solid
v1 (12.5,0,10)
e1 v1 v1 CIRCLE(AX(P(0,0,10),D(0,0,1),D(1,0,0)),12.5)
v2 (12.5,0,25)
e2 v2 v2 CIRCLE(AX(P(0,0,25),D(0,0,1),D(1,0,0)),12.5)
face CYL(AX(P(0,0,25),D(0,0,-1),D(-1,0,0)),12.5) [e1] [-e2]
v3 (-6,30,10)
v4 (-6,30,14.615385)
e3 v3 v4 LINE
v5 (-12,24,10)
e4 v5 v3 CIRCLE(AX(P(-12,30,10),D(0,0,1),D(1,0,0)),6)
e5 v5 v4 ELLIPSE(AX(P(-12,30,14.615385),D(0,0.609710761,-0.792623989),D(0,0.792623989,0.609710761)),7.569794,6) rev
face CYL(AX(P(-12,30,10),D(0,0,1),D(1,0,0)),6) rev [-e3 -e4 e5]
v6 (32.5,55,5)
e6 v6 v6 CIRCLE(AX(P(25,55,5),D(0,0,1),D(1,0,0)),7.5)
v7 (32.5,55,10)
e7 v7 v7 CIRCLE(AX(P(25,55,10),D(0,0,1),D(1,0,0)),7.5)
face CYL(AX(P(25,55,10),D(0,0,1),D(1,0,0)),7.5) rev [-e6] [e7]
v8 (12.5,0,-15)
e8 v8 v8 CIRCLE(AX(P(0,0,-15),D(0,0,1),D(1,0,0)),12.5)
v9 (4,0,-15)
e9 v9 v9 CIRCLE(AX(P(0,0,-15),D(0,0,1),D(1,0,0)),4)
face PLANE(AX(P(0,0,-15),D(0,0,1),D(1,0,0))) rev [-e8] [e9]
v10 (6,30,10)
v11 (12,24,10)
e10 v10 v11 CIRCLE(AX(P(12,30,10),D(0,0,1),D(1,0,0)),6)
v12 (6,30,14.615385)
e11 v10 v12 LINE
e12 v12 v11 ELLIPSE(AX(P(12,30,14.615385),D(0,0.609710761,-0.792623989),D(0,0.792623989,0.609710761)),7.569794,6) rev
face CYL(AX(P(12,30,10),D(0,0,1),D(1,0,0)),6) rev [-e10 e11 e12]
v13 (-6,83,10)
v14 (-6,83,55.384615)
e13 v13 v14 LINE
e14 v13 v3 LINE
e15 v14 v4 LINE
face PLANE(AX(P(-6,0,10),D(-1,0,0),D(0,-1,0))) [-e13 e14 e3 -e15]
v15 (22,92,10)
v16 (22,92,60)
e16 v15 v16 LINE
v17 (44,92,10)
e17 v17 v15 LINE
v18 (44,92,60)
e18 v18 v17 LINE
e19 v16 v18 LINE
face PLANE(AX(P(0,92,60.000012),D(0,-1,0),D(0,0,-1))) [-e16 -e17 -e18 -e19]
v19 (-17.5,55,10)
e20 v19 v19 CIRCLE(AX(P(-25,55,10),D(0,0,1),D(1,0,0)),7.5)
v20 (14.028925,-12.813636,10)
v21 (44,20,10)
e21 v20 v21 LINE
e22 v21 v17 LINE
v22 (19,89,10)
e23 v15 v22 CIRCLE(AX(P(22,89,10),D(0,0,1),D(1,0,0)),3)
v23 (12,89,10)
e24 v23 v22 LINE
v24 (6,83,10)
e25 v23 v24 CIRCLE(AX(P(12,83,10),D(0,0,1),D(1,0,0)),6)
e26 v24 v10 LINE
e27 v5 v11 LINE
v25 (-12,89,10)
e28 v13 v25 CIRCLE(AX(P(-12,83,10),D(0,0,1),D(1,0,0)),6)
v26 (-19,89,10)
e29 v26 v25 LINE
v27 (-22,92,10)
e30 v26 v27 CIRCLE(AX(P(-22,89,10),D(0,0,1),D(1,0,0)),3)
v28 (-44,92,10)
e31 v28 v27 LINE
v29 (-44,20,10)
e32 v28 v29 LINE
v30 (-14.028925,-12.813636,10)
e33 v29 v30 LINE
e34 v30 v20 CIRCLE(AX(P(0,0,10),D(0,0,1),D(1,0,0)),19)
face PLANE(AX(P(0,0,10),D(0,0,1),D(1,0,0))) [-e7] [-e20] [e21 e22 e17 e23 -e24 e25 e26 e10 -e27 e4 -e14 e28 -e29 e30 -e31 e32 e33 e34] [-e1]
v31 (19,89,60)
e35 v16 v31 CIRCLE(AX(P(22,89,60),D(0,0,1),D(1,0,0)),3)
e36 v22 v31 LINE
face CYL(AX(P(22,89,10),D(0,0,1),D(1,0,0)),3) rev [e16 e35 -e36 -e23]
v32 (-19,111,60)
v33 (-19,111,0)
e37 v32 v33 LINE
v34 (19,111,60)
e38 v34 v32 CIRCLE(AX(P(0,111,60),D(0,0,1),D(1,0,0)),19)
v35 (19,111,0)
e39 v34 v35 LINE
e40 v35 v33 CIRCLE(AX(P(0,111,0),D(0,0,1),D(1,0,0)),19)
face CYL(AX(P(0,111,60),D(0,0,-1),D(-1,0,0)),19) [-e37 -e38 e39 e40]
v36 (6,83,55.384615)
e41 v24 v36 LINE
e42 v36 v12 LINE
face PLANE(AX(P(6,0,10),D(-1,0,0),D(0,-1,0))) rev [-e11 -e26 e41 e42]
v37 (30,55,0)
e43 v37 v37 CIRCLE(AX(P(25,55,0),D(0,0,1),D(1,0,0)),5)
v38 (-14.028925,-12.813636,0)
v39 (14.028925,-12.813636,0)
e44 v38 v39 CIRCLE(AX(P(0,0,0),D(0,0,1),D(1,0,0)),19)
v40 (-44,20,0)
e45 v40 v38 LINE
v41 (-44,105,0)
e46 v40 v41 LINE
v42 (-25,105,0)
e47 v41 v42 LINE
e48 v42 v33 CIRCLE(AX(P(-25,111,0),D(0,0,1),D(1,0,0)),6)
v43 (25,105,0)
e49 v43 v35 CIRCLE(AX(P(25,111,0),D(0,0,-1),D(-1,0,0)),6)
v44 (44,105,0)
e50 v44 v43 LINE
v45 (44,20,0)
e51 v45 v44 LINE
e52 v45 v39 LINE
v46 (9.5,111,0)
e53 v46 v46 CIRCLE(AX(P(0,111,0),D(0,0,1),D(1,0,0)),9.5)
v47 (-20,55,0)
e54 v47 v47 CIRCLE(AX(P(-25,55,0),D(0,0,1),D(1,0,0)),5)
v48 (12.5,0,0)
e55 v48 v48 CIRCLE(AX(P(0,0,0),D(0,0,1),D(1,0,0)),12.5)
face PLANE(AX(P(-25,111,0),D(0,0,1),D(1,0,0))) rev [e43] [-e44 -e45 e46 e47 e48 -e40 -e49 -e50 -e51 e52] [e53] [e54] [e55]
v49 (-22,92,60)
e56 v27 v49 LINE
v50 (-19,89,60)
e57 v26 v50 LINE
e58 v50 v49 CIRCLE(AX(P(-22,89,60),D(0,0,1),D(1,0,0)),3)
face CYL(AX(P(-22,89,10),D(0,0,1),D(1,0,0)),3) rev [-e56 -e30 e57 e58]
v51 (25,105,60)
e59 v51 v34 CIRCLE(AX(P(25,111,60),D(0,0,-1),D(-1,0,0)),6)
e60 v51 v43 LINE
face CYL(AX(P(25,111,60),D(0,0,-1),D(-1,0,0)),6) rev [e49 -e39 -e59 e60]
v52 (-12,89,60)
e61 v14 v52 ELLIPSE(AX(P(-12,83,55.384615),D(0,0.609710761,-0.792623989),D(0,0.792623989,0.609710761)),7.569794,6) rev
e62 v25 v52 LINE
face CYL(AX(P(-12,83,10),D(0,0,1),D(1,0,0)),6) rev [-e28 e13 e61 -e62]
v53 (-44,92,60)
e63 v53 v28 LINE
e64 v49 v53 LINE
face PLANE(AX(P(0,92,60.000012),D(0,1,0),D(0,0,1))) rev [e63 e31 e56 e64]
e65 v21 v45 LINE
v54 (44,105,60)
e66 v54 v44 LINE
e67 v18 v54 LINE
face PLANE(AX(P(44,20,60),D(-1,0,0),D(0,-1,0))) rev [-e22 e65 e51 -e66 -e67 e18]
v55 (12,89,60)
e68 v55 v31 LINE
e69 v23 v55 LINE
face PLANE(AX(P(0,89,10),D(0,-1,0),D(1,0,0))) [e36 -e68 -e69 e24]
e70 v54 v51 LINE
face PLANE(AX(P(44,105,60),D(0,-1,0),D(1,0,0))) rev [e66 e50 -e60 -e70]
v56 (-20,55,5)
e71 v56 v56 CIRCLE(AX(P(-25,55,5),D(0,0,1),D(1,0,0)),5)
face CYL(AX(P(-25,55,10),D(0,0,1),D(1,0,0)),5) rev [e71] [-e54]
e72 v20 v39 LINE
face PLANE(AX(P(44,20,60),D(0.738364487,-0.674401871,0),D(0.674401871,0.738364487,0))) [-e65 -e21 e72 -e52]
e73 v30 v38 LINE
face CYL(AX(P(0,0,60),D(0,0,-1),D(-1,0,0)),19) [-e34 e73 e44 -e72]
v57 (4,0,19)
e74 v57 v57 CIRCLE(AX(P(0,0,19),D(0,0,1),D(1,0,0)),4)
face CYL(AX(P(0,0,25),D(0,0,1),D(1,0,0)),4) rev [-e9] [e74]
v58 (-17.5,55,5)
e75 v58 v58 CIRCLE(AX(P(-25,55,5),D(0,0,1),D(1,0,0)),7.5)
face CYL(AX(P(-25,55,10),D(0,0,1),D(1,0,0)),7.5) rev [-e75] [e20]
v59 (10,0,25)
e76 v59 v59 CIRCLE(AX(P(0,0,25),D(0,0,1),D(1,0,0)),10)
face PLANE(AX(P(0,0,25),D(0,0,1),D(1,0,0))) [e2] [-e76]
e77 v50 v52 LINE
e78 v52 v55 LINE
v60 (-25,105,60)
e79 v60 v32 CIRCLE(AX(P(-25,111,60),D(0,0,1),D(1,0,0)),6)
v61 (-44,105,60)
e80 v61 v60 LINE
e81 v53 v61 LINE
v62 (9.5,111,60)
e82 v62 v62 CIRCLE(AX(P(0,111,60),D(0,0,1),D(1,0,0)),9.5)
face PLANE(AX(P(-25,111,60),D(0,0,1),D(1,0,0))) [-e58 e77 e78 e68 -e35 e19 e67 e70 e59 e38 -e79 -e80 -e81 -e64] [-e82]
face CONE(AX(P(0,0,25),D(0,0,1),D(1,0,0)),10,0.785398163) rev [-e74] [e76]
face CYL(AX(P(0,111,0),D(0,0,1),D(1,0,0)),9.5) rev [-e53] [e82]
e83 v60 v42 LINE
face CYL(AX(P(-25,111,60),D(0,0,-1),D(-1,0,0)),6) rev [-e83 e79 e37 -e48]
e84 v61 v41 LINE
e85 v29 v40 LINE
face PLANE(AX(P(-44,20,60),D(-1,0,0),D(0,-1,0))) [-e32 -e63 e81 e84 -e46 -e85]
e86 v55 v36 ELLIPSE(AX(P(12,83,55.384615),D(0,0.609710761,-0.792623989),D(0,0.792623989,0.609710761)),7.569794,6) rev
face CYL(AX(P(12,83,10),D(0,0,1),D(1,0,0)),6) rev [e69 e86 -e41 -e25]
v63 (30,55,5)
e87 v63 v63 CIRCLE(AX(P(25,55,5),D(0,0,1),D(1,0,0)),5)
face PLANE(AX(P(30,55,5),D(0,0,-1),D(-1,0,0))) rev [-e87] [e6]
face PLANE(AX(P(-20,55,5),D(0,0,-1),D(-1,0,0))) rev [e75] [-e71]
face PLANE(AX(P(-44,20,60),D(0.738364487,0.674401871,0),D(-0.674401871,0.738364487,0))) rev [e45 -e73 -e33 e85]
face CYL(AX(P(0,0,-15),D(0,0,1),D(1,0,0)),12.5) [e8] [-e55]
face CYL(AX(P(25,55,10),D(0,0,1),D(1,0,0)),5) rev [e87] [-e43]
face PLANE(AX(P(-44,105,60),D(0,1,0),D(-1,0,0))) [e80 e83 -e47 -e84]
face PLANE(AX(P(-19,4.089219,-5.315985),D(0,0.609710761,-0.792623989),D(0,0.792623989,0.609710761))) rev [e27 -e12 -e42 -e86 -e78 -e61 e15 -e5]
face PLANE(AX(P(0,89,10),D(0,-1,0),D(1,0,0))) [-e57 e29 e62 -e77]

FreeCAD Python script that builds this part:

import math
import FreeCAD as App
import Part
import Sketcher
Q = App.Units.Quantity


def add_polygon(sketch, points):
    """Adds a closed chain of lines whose ends are joined by coincident constraints."""
    first, n = sketch.GeometryCount, len(points)
    for a, b in zip(points, points[1:] + points[:1]):
        sketch.addGeometry(Part.LineSegment(App.Vector(*a, 0), App.Vector(*b, 0)), False)
    for i in range(n):
        sketch.addConstraint(Sketcher.Constraint("Coincident", first + i, 2, first + (i + 1) % n, 1))

doc = App.newDocument("Part")
body = doc.addObject("PartDesign::Body", "Body")

sketch1 = doc.addObject("Sketcher::SketchObject", "Sketch")
body.addObject(sketch1)
sketch1.AttachmentSupport = (doc.XY_Plane, [""])
sketch1.MapMode = "FlatFace"
sketch1.addGeometry([
    Part.LineSegment(App.Vector(14, -13, 0), App.Vector(44, 20, 0)),
    Part.LineSegment(App.Vector(44, 20, 0), App.Vector(44, 105, 0)),
    Part.LineSegment(App.Vector(44, 105, 0), App.Vector(25, 105, 0)),
    Part.ArcOfCircle(Part.Circle(App.Vector(25, 111, 0), App.Vector(0, 0, 1), 6), math.radians(180), math.radians(270)),
    Part.ArcOfCircle(Part.Circle(App.Vector(0, 111, 0), App.Vector(0, 0, 1), 19), math.radians(0), math.radians(180)),
    Part.ArcOfCircle(Part.Circle(App.Vector(-25, 111, 0), App.Vector(0, 0, 1), 6), math.radians(-90), math.radians(0)),
    Part.LineSegment(App.Vector(-25, 105, 0), App.Vector(-44, 105, 0)),
    Part.LineSegment(App.Vector(-44, 105, 0), App.Vector(-44, 20, 0)),
    Part.LineSegment(App.Vector(-44, 20, 0), App.Vector(-14, -13, 0)),
    Part.ArcOfCircle(Part.Circle(App.Vector(0, 0, 0), App.Vector(0, 0, 1), 19), math.radians(-138), math.radians(-42)),
], False)
sketch1.addConstraint([
    Sketcher.Constraint("Coincident", 0, 2, 1, 1),
    Sketcher.Constraint("Coincident", 1, 2, 2, 1),
    Sketcher.Constraint("Tangent", 2, 2, 3, 2),
    Sketcher.Constraint("Tangent", 3, 1, 4, 1),
    Sketcher.Constraint("Tangent", 4, 2, 5, 2),
    Sketcher.Constraint("Tangent", 5, 1, 6, 1),
    Sketcher.Constraint("Coincident", 6, 2, 7, 1),
    Sketcher.Constraint("Coincident", 7, 2, 8, 1),
    Sketcher.Constraint("Tangent", 8, 2, 9, 1),
    Sketcher.Constraint("Tangent", 9, 2, 0, 1),
    Sketcher.Constraint("Vertical", 1),
    Sketcher.Constraint("Horizontal", 2),
    Sketcher.Constraint("Horizontal", 6),
    Sketcher.Constraint("Vertical", 7),
    Sketcher.Constraint("Coincident", 9, 3, -1, 1),
    Sketcher.Constraint("Equal", 3, 5),
    Sketcher.Constraint("Equal", 4, 9),
    Sketcher.Constraint("Symmetric", 3, 3, 5, 3, -2),
    Sketcher.Constraint("Symmetric", 0, 2, 7, 2, -2),
    Sketcher.Constraint("Horizontal", 3, 3, 4, 3),
    Sketcher.Constraint("Radius", 3, Q("6 mm")),
    Sketcher.Constraint("Radius", 4, Q("19 mm")),
    Sketcher.Constraint("DistanceX", 2, 2, 2, 1, Q("19 mm")),
    Sketcher.Constraint("DistanceY", 1, 1, 1, 2, Q("85 mm")),
    Sketcher.Constraint("DistanceY", -1, 1, 3, 3, Q("111 mm")),
])
pad1 = doc.addObject("PartDesign::Pad", "Pad")
body.addObject(pad1)
pad1.Profile = sketch1
pad1.Length = 60

sketch2 = doc.addObject("Sketcher::SketchObject", "Sketch001")
body.addObject(sketch2)
sketch2.AttachmentSupport = (doc.XY_Plane, [""])
sketch2.MapMode = "FlatFace"
sketch2.AttachmentOffset = App.Placement(App.Vector(0, 0, 60), App.Rotation())
sketch2.addGeometry([
    Part.LineSegment(App.Vector(14, -12.8, 0), App.Vector(44, 20, 0)),
    Part.LineSegment(App.Vector(44, 20, 0), App.Vector(44, 92, 0)),
    Part.LineSegment(App.Vector(44, 92, 0), App.Vector(22, 92, 0)),
    Part.ArcOfCircle(Part.Circle(App.Vector(22, 89, 0), App.Vector(0, 0, 1), 3), math.radians(90), math.radians(180)),
    Part.LineSegment(App.Vector(19, 89, 0), App.Vector(-19, 89, 0)),
    Part.ArcOfCircle(Part.Circle(App.Vector(-22, 89, 0), App.Vector(0, 0, 1), 3), math.radians(0), math.radians(90)),
    Part.LineSegment(App.Vector(-22, 92, 0), App.Vector(-44, 92, 0)),
    Part.LineSegment(App.Vector(-44, 92, 0), App.Vector(-44, 20, 0)),
    Part.LineSegment(App.Vector(-44, 20, 0), App.Vector(-14, -12.8, 0)),
    Part.ArcOfCircle(Part.Circle(App.Vector(0, 0, 0), App.Vector(0, 0, 1), 19), math.radians(-138), math.radians(-42)),
], False)
sketch2.addConstraint([
    Sketcher.Constraint("Coincident", 0, 2, 1, 1),
    Sketcher.Constraint("Coincident", 1, 2, 2, 1),
    Sketcher.Constraint("Tangent", 2, 2, 3, 1),
    Sketcher.Constraint("Coincident", 3, 2, 4, 1),
    Sketcher.Constraint("Coincident", 4, 2, 5, 1),
    Sketcher.Constraint("Tangent", 5, 2, 6, 1),
    Sketcher.Constraint("Coincident", 6, 2, 7, 1),
    Sketcher.Constraint("Coincident", 7, 2, 8, 1),
    Sketcher.Constraint("Tangent", 8, 2, 9, 1),
    Sketcher.Constraint("Tangent", 9, 2, 0, 1),
    Sketcher.Constraint("Vertical", 1),
    Sketcher.Constraint("Horizontal", 2),
    Sketcher.Constraint("Horizontal", 4),
    Sketcher.Constraint("Horizontal", 6),
    Sketcher.Constraint("Vertical", 7),
    Sketcher.Constraint("Coincident", 9, 3, -1, 1),
    Sketcher.Constraint("Equal", 3, 5),
    Sketcher.Constraint("Symmetric", 3, 3, 5, 3, -2),
    Sketcher.Constraint("Symmetric", 0, 2, 7, 2, -2),
    Sketcher.Constraint("Horizontal", 5, 3, 3, 2),
    Sketcher.Constraint("Radius", 3, Q("3 mm")),
    Sketcher.Constraint("Radius", 9, Q("19 mm")),
    Sketcher.Constraint("DistanceX", 2, 2, 2, 1, Q("22 mm")),
    Sketcher.Constraint("DistanceX", 4, 2, 4, 1, Q("38 mm")),
    Sketcher.Constraint("DistanceY", 1, 1, 1, 2, Q("72 mm")),
    Sketcher.Constraint("DistanceY", -1, 1, 3, 3, Q("89 mm")),
])
pocket1 = doc.addObject("PartDesign::Pocket", "Pocket")
body.addObject(pocket1)
pocket1.Profile = sketch2
pocket1.Type = "TwoLengths"
pocket1.Length = 1
pocket1.Length2 = 50
pocket1.Reversed = True

sketch3 = doc.addObject("Sketcher::SketchObject", "Sketch002")
body.addObject(sketch3)
sketch3.AttachmentSupport = (doc.XY_Plane, [""])
sketch3.MapMode = "FlatFace"
sketch3.AttachmentOffset = App.Placement(App.Vector(0, 0, 60), App.Rotation())
sketch3.addGeometry([
    Part.ArcOfCircle(Part.Circle(App.Vector(-12, 83, 0), App.Vector(0, 0, 1), 6), math.radians(0), math.radians(90)),
    Part.LineSegment(App.Vector(-6, 83, 0), App.Vector(-6, 30, 0)),
    Part.ArcOfCircle(Part.Circle(App.Vector(-12, 30, 0), App.Vector(0, 0, 1), 6), math.radians(-90), math.radians(0)),
    Part.LineSegment(App.Vector(-12, 24, 0), App.Vector(12, 24, 0)),
    Part.ArcOfCircle(Part.Circle(App.Vector(12, 30, 0), App.Vector(0, 0, 1), 6), math.radians(180), math.radians(270)),
    Part.LineSegment(App.Vector(6, 30, 0), App.Vector(6, 83, 0)),
    Part.ArcOfCircle(Part.Circle(App.Vector(12, 83, 0), App.Vector(0, 0, 1), 6), math.radians(90), math.radians(180)),
    Part.LineSegment(App.Vector(12, 89, 0), App.Vector(-12, 89, 0)),
], False)
sketch3.addConstraint([
    Sketcher.Constraint("Tangent", 0, 1, 1, 1),
    Sketcher.Constraint("Tangent", 1, 2, 2, 2),
    Sketcher.Constraint("Tangent", 2, 1, 3, 1),
    Sketcher.Constraint("Tangent", 3, 2, 4, 2),
    Sketcher.Constraint("Tangent", 4, 1, 5, 1),
    Sketcher.Constraint("Tangent", 5, 2, 6, 2),
    Sketcher.Constraint("Tangent", 6, 1, 7, 1),
    Sketcher.Constraint("Tangent", 7, 2, 0, 2),
    Sketcher.Constraint("Vertical", 1),
    Sketcher.Constraint("Horizontal", 3),
    Sketcher.Constraint("Vertical", 5),
    Sketcher.Constraint("Horizontal", 7),
    Sketcher.Constraint("Equal", 0, 2),
    Sketcher.Constraint("Equal", 2, 4),
    Sketcher.Constraint("Equal", 4, 6),
    Sketcher.Constraint("Radius", 0, Q("6 mm")),
    Sketcher.Constraint("DistanceX", 3, 1, 3, 2, Q("24 mm")),
    Sketcher.Constraint("DistanceY", 1, 2, 1, 1, Q("53 mm")),
    Sketcher.Constraint("DistanceX", 0, 3, -1, 1, Q("12 mm")),
    Sketcher.Constraint("DistanceY", -1, 1, 0, 3, Q("83 mm")),
])
pad2 = doc.addObject("PartDesign::Pad", "Pad001")
body.addObject(pad2)
pad2.Profile = sketch3
pad2.Length = 50
pad2.Reversed = True

sketch4 = doc.addObject("Sketcher::SketchObject", "Sketch003")
body.addObject(sketch4)
sketch4.AttachmentSupport = (doc.YZ_Plane, [""])
sketch4.MapMode = "FlatFace"
sketch4.AttachmentOffset = App.Placement(App.Vector(0, 0, 6), App.Rotation())
add_polygon(sketch4, [(24, 10), (89, 60), (24, 60)])
sketch4.addConstraint([
    Sketcher.Constraint("Horizontal", 1),
    Sketcher.Constraint("Vertical", 2),
    Sketcher.Constraint("DistanceX", 1, 2, 1, 1, Q("65 mm")),
    Sketcher.Constraint("DistanceY", 2, 2, 2, 1, Q("50 mm")),
    Sketcher.Constraint("DistanceX", -1, 1, 0, 2, Q("89 mm")),
    Sketcher.Constraint("DistanceY", -1, 1, 0, 2, Q("60 mm")),
])
pocket2 = doc.addObject("PartDesign::Pocket", "Pocket001")
body.addObject(pocket2)
pocket2.Profile = sketch4
pocket2.Length = 50
pocket2.Midplane = True

sketch5 = doc.addObject("Sketcher::SketchObject", "Sketch004")
body.addObject(sketch5)
sketch5.AttachmentSupport = (doc.XY_Plane, [""])
sketch5.MapMode = "FlatFace"
sketch5.AttachmentOffset = App.Placement(App.Vector(0, 0, 10), App.Rotation())
sketch5.addGeometry([
    Part.Circle(App.Vector(-25, 55, 0), App.Vector(0, 0, 1), 5),
    Part.Circle(App.Vector(25, 55, 0), App.Vector(0, 0, 1), 5),
], False)
sketch5.addConstraint([
    Sketcher.Constraint("Equal", 0, 1),
    Sketcher.Constraint("Symmetric", 0, 3, 1, 3, -2),
    Sketcher.Constraint("Diameter", 0, Q("10 mm")),
    Sketcher.Constraint("DistanceX", 0, 3, -1, 1, Q("25 mm")),
    Sketcher.Constraint("DistanceY", -1, 1, 0, 3, Q("55 mm")),
])
doc.recompute()
hole = doc.addObject("PartDesign::Hole", "Hole")
body.addObject(hole)
hole.Profile = sketch5
hole.ThreadType = "None"
hole.Diameter = 10
hole.DepthType = "Dimension"
hole.Depth = 10
hole.DrillPoint = "Angled"
hole.DrillPointAngle = 118
hole.HoleCutType = "Counterbore"
hole.HoleCutDiameter = 15
hole.HoleCutDepth = 5

sketch6 = doc.addObject("Sketcher::SketchObject", "Sketch005")
body.addObject(sketch6)
sketch6.AttachmentSupport = (doc.XY_Plane, [""])
sketch6.MapMode = "FlatFace"
sketch6.AttachmentOffset = App.Placement(App.Vector(0, 0, 60), App.Rotation())
sketch6.addGeometry(Part.Circle(App.Vector(0, 111, 0), App.Vector(0, 0, 1), 10), False)
sketch6.addConstraint([
    Sketcher.Constraint("PointOnObject", 0, 3, -2),
    Sketcher.Constraint("Diameter", 0, Q("19 mm")),
    Sketcher.Constraint("DistanceY", -1, 1, 0, 3, Q("111 mm")),
])
pocket3 = doc.addObject("PartDesign::Pocket", "Pocket002")
body.addObject(pocket3)
pocket3.Profile = sketch6
pocket3.Length = 60

sketch7 = doc.addObject("Sketcher::SketchObject", "Sketch006")
body.addObject(sketch7)
sketch7.AttachmentSupport = (doc.XY_Plane, [""])
sketch7.MapMode = "FlatFace"
sketch7.AttachmentOffset = App.Placement(App.Vector(0, 0, 10), App.Rotation())
sketch7.addGeometry(Part.Circle(App.Vector(0, 0, 0), App.Vector(0, 0, 1), 12), False)
sketch7.addConstraint([
    Sketcher.Constraint("Coincident", 0, 3, -1, 1),
    Sketcher.Constraint("Diameter", 0, Q("25 mm")),
])
pad3 = doc.addObject("PartDesign::Pad", "Pad002")
body.addObject(pad3)
pad3.Profile = sketch7
pad3.Length = 15

sketch8 = doc.addObject("Sketcher::SketchObject", "Sketch007")
body.addObject(sketch8)
sketch8.AttachmentSupport = (doc.XY_Plane, [""])
sketch8.MapMode = "FlatFace"
sketch8.addGeometry(Part.Circle(App.Vector(0, 0, 0), App.Vector(0, 0, 1), 12), False)
sketch8.addConstraint([
    Sketcher.Constraint("Coincident", 0, 3, -1, 1),
    Sketcher.Constraint("Diameter", 0, Q("25 mm")),
])
pad4 = doc.addObject("PartDesign::Pad", "Pad003")
body.addObject(pad4)
pad4.Profile = sketch8
pad4.Length = 15
pad4.Reversed = True

sketch9 = doc.addObject("Sketcher::SketchObject", "Sketch008")
body.addObject(sketch9)
sketch9.AttachmentSupport = (doc.XY_Plane, [""])
sketch9.MapMode = "FlatFace"
sketch9.AttachmentOffset = App.Placement(App.Vector(0, 0, 60), App.Rotation())
sketch9.addGeometry([
    Part.ArcOfCircle(Part.Circle(App.Vector(-12, 83, 0), App.Vector(0, 0, 1), 6), math.radians(0), math.radians(90)),
    Part.LineSegment(App.Vector(-6, 83, 0), App.Vector(-6, 30, 0)),
    Part.ArcOfCircle(Part.Circle(App.Vector(-12, 30, 0), App.Vector(0, 0, 1), 6), math.radians(-90), math.radians(0)),
    Part.LineSegment(App.Vector(-12, 24, 0), App.Vector(12, 24, 0)),
    Part.ArcOfCircle(Part.Circle(App.Vector(12, 30, 0), App.Vector(0, 0, 1), 6), math.radians(180), math.radians(270)),
    Part.LineSegment(App.Vector(6, 30, 0), App.Vector(6, 83, 0)),
    Part.ArcOfCircle(Part.Circle(App.Vector(12, 83, 0), App.Vector(0, 0, 1), 6), math.radians(90), math.radians(180)),
    Part.LineSegment(App.Vector(12, 89, 0), App.Vector(-12, 89, 0)),
], False)
sketch9.addConstraint([
    Sketcher.Constraint("Tangent", 0, 1, 1, 1),
    Sketcher.Constraint("Tangent", 1, 2, 2, 2),
    Sketcher.Constraint("Tangent", 2, 1, 3, 1),
    Sketcher.Constraint("Tangent", 3, 2, 4, 2),
    Sketcher.Constraint("Tangent", 4, 1, 5, 1),
    Sketcher.Constraint("Tangent", 5, 2, 6, 2),
    Sketcher.Constraint("Tangent", 6, 1, 7, 1),
    Sketcher.Constraint("Tangent", 7, 2, 0, 2),
    Sketcher.Constraint("Vertical", 1),
    Sketcher.Constraint("Horizontal", 3),
    Sketcher.Constraint("Vertical", 5),
    Sketcher.Constraint("Horizontal", 7),
    Sketcher.Constraint("Equal", 0, 2),
    Sketcher.Constraint("Equal", 2, 4),
    Sketcher.Constraint("Equal", 4, 6),
    Sketcher.Constraint("Radius", 0, Q("6 mm")),
    Sketcher.Constraint("DistanceX", 3, 1, 3, 2, Q("24 mm")),
    Sketcher.Constraint("DistanceY", 1, 2, 1, 1, Q("53 mm")),
    Sketcher.Constraint("DistanceX", 0, 3, -1, 1, Q("12 mm")),
    Sketcher.Constraint("DistanceY", -1, 1, 0, 3, Q("83 mm")),
])
pad5 = doc.addObject("PartDesign::Pad", "Pad004")
body.addObject(pad5)
pad5.Profile = sketch9
pad5.Length = 50
pad5.Reversed = True

sketch10 = doc.addObject("Sketcher::SketchObject", "Sketch009")
body.addObject(sketch10)
sketch10.AttachmentSupport = (doc.YZ_Plane, [""])
sketch10.MapMode = "FlatFace"
sketch10.AttachmentOffset = App.Placement(App.Vector(0, 0, 6), App.Rotation())
add_polygon(sketch10, [(24, 10), (89, 60), (24, 60)])
sketch10.addConstraint([
    Sketcher.Constraint("Horizontal", 1),
    Sketcher.Constraint("Vertical", 2),
    Sketcher.Constraint("DistanceX", 1, 2, 1, 1, Q("65 mm")),
    Sketcher.Constraint("DistanceY", 2, 2, 2, 1, Q("50 mm")),
    Sketcher.Constraint("DistanceX", -1, 1, 0, 2, Q("89 mm")),
    Sketcher.Constraint("DistanceY", -1, 1, 0, 2, Q("60 mm")),
])
pocket4 = doc.addObject("PartDesign::Pocket", "Pocket003")
body.addObject(pocket4)
pocket4.Profile = sketch10
pocket4.Length = 50
pocket4.Midplane = True

sketch11 = doc.addObject("Sketcher::SketchObject", "Sketch010")
body.addObject(sketch11)
sketch11.AttachmentSupport = (doc.YZ_Plane, [""])
sketch11.MapMode = "FlatFace"
add_polygon(sketch11, [(0, -17.4), (0, 25), (-10, 25), (-4, 19), (-4, -15)])
sketch11.addConstraint([
    Sketcher.Constraint("Vertical", 0),
    Sketcher.Constraint("Horizontal", 1),
    Sketcher.Constraint("Vertical", 3),
    Sketcher.Constraint("PointOnObject", 0, 2, -2),
    Sketcher.Constraint("DistanceX", 1, 2, 1, 1, Q("10 mm")),
    Sketcher.Constraint("DistanceY", 3, 2, 3, 1, Q("34 mm")),
    Sketcher.Constraint("Angle", 2, Q("-45 deg")),
    Sketcher.Constraint("Angle", 4, Q("-31 deg")),
    Sketcher.Constraint("DistanceY", -1, 1, 0, 2, Q("25 mm")),
    Sketcher.Constraint("DistanceX", 2, 2, -1, 1, Q("4 mm")),
])
groove = doc.addObject("PartDesign::Groove", "Groove")
body.addObject(groove)
groove.Profile = sketch11
groove.ReferenceAxis = (sketch11, ["V_Axis"])
groove.Angle = 360

sketch12 = doc.addObject("Sketcher::SketchObject", "Sketch011")
body.addObject(sketch12)
sketch12.AttachmentSupport = (doc.XY_Plane, [""])
sketch12.MapMode = "FlatFace"
sketch12.AttachmentOffset = App.Placement(App.Vector(0, 0, 60), App.Rotation())
sketch12.addGeometry(Part.Circle(App.Vector(0, 111, 0), App.Vector(0, 0, 1), 10), False)
sketch12.addConstraint([
    Sketcher.Constraint("PointOnObject", 0, 3, -2),
    Sketcher.Constraint("Diameter", 0, Q("19 mm")),
    Sketcher.Constraint("DistanceY", -1, 1, 0, 3, Q("111 mm")),
])
pocket5 = doc.addObject("PartDesign::Pocket", "Pocket004")
body.addObject(pocket5)
pocket5.Profile = sketch12
pocket5.Length = 60

doc.recompute()
